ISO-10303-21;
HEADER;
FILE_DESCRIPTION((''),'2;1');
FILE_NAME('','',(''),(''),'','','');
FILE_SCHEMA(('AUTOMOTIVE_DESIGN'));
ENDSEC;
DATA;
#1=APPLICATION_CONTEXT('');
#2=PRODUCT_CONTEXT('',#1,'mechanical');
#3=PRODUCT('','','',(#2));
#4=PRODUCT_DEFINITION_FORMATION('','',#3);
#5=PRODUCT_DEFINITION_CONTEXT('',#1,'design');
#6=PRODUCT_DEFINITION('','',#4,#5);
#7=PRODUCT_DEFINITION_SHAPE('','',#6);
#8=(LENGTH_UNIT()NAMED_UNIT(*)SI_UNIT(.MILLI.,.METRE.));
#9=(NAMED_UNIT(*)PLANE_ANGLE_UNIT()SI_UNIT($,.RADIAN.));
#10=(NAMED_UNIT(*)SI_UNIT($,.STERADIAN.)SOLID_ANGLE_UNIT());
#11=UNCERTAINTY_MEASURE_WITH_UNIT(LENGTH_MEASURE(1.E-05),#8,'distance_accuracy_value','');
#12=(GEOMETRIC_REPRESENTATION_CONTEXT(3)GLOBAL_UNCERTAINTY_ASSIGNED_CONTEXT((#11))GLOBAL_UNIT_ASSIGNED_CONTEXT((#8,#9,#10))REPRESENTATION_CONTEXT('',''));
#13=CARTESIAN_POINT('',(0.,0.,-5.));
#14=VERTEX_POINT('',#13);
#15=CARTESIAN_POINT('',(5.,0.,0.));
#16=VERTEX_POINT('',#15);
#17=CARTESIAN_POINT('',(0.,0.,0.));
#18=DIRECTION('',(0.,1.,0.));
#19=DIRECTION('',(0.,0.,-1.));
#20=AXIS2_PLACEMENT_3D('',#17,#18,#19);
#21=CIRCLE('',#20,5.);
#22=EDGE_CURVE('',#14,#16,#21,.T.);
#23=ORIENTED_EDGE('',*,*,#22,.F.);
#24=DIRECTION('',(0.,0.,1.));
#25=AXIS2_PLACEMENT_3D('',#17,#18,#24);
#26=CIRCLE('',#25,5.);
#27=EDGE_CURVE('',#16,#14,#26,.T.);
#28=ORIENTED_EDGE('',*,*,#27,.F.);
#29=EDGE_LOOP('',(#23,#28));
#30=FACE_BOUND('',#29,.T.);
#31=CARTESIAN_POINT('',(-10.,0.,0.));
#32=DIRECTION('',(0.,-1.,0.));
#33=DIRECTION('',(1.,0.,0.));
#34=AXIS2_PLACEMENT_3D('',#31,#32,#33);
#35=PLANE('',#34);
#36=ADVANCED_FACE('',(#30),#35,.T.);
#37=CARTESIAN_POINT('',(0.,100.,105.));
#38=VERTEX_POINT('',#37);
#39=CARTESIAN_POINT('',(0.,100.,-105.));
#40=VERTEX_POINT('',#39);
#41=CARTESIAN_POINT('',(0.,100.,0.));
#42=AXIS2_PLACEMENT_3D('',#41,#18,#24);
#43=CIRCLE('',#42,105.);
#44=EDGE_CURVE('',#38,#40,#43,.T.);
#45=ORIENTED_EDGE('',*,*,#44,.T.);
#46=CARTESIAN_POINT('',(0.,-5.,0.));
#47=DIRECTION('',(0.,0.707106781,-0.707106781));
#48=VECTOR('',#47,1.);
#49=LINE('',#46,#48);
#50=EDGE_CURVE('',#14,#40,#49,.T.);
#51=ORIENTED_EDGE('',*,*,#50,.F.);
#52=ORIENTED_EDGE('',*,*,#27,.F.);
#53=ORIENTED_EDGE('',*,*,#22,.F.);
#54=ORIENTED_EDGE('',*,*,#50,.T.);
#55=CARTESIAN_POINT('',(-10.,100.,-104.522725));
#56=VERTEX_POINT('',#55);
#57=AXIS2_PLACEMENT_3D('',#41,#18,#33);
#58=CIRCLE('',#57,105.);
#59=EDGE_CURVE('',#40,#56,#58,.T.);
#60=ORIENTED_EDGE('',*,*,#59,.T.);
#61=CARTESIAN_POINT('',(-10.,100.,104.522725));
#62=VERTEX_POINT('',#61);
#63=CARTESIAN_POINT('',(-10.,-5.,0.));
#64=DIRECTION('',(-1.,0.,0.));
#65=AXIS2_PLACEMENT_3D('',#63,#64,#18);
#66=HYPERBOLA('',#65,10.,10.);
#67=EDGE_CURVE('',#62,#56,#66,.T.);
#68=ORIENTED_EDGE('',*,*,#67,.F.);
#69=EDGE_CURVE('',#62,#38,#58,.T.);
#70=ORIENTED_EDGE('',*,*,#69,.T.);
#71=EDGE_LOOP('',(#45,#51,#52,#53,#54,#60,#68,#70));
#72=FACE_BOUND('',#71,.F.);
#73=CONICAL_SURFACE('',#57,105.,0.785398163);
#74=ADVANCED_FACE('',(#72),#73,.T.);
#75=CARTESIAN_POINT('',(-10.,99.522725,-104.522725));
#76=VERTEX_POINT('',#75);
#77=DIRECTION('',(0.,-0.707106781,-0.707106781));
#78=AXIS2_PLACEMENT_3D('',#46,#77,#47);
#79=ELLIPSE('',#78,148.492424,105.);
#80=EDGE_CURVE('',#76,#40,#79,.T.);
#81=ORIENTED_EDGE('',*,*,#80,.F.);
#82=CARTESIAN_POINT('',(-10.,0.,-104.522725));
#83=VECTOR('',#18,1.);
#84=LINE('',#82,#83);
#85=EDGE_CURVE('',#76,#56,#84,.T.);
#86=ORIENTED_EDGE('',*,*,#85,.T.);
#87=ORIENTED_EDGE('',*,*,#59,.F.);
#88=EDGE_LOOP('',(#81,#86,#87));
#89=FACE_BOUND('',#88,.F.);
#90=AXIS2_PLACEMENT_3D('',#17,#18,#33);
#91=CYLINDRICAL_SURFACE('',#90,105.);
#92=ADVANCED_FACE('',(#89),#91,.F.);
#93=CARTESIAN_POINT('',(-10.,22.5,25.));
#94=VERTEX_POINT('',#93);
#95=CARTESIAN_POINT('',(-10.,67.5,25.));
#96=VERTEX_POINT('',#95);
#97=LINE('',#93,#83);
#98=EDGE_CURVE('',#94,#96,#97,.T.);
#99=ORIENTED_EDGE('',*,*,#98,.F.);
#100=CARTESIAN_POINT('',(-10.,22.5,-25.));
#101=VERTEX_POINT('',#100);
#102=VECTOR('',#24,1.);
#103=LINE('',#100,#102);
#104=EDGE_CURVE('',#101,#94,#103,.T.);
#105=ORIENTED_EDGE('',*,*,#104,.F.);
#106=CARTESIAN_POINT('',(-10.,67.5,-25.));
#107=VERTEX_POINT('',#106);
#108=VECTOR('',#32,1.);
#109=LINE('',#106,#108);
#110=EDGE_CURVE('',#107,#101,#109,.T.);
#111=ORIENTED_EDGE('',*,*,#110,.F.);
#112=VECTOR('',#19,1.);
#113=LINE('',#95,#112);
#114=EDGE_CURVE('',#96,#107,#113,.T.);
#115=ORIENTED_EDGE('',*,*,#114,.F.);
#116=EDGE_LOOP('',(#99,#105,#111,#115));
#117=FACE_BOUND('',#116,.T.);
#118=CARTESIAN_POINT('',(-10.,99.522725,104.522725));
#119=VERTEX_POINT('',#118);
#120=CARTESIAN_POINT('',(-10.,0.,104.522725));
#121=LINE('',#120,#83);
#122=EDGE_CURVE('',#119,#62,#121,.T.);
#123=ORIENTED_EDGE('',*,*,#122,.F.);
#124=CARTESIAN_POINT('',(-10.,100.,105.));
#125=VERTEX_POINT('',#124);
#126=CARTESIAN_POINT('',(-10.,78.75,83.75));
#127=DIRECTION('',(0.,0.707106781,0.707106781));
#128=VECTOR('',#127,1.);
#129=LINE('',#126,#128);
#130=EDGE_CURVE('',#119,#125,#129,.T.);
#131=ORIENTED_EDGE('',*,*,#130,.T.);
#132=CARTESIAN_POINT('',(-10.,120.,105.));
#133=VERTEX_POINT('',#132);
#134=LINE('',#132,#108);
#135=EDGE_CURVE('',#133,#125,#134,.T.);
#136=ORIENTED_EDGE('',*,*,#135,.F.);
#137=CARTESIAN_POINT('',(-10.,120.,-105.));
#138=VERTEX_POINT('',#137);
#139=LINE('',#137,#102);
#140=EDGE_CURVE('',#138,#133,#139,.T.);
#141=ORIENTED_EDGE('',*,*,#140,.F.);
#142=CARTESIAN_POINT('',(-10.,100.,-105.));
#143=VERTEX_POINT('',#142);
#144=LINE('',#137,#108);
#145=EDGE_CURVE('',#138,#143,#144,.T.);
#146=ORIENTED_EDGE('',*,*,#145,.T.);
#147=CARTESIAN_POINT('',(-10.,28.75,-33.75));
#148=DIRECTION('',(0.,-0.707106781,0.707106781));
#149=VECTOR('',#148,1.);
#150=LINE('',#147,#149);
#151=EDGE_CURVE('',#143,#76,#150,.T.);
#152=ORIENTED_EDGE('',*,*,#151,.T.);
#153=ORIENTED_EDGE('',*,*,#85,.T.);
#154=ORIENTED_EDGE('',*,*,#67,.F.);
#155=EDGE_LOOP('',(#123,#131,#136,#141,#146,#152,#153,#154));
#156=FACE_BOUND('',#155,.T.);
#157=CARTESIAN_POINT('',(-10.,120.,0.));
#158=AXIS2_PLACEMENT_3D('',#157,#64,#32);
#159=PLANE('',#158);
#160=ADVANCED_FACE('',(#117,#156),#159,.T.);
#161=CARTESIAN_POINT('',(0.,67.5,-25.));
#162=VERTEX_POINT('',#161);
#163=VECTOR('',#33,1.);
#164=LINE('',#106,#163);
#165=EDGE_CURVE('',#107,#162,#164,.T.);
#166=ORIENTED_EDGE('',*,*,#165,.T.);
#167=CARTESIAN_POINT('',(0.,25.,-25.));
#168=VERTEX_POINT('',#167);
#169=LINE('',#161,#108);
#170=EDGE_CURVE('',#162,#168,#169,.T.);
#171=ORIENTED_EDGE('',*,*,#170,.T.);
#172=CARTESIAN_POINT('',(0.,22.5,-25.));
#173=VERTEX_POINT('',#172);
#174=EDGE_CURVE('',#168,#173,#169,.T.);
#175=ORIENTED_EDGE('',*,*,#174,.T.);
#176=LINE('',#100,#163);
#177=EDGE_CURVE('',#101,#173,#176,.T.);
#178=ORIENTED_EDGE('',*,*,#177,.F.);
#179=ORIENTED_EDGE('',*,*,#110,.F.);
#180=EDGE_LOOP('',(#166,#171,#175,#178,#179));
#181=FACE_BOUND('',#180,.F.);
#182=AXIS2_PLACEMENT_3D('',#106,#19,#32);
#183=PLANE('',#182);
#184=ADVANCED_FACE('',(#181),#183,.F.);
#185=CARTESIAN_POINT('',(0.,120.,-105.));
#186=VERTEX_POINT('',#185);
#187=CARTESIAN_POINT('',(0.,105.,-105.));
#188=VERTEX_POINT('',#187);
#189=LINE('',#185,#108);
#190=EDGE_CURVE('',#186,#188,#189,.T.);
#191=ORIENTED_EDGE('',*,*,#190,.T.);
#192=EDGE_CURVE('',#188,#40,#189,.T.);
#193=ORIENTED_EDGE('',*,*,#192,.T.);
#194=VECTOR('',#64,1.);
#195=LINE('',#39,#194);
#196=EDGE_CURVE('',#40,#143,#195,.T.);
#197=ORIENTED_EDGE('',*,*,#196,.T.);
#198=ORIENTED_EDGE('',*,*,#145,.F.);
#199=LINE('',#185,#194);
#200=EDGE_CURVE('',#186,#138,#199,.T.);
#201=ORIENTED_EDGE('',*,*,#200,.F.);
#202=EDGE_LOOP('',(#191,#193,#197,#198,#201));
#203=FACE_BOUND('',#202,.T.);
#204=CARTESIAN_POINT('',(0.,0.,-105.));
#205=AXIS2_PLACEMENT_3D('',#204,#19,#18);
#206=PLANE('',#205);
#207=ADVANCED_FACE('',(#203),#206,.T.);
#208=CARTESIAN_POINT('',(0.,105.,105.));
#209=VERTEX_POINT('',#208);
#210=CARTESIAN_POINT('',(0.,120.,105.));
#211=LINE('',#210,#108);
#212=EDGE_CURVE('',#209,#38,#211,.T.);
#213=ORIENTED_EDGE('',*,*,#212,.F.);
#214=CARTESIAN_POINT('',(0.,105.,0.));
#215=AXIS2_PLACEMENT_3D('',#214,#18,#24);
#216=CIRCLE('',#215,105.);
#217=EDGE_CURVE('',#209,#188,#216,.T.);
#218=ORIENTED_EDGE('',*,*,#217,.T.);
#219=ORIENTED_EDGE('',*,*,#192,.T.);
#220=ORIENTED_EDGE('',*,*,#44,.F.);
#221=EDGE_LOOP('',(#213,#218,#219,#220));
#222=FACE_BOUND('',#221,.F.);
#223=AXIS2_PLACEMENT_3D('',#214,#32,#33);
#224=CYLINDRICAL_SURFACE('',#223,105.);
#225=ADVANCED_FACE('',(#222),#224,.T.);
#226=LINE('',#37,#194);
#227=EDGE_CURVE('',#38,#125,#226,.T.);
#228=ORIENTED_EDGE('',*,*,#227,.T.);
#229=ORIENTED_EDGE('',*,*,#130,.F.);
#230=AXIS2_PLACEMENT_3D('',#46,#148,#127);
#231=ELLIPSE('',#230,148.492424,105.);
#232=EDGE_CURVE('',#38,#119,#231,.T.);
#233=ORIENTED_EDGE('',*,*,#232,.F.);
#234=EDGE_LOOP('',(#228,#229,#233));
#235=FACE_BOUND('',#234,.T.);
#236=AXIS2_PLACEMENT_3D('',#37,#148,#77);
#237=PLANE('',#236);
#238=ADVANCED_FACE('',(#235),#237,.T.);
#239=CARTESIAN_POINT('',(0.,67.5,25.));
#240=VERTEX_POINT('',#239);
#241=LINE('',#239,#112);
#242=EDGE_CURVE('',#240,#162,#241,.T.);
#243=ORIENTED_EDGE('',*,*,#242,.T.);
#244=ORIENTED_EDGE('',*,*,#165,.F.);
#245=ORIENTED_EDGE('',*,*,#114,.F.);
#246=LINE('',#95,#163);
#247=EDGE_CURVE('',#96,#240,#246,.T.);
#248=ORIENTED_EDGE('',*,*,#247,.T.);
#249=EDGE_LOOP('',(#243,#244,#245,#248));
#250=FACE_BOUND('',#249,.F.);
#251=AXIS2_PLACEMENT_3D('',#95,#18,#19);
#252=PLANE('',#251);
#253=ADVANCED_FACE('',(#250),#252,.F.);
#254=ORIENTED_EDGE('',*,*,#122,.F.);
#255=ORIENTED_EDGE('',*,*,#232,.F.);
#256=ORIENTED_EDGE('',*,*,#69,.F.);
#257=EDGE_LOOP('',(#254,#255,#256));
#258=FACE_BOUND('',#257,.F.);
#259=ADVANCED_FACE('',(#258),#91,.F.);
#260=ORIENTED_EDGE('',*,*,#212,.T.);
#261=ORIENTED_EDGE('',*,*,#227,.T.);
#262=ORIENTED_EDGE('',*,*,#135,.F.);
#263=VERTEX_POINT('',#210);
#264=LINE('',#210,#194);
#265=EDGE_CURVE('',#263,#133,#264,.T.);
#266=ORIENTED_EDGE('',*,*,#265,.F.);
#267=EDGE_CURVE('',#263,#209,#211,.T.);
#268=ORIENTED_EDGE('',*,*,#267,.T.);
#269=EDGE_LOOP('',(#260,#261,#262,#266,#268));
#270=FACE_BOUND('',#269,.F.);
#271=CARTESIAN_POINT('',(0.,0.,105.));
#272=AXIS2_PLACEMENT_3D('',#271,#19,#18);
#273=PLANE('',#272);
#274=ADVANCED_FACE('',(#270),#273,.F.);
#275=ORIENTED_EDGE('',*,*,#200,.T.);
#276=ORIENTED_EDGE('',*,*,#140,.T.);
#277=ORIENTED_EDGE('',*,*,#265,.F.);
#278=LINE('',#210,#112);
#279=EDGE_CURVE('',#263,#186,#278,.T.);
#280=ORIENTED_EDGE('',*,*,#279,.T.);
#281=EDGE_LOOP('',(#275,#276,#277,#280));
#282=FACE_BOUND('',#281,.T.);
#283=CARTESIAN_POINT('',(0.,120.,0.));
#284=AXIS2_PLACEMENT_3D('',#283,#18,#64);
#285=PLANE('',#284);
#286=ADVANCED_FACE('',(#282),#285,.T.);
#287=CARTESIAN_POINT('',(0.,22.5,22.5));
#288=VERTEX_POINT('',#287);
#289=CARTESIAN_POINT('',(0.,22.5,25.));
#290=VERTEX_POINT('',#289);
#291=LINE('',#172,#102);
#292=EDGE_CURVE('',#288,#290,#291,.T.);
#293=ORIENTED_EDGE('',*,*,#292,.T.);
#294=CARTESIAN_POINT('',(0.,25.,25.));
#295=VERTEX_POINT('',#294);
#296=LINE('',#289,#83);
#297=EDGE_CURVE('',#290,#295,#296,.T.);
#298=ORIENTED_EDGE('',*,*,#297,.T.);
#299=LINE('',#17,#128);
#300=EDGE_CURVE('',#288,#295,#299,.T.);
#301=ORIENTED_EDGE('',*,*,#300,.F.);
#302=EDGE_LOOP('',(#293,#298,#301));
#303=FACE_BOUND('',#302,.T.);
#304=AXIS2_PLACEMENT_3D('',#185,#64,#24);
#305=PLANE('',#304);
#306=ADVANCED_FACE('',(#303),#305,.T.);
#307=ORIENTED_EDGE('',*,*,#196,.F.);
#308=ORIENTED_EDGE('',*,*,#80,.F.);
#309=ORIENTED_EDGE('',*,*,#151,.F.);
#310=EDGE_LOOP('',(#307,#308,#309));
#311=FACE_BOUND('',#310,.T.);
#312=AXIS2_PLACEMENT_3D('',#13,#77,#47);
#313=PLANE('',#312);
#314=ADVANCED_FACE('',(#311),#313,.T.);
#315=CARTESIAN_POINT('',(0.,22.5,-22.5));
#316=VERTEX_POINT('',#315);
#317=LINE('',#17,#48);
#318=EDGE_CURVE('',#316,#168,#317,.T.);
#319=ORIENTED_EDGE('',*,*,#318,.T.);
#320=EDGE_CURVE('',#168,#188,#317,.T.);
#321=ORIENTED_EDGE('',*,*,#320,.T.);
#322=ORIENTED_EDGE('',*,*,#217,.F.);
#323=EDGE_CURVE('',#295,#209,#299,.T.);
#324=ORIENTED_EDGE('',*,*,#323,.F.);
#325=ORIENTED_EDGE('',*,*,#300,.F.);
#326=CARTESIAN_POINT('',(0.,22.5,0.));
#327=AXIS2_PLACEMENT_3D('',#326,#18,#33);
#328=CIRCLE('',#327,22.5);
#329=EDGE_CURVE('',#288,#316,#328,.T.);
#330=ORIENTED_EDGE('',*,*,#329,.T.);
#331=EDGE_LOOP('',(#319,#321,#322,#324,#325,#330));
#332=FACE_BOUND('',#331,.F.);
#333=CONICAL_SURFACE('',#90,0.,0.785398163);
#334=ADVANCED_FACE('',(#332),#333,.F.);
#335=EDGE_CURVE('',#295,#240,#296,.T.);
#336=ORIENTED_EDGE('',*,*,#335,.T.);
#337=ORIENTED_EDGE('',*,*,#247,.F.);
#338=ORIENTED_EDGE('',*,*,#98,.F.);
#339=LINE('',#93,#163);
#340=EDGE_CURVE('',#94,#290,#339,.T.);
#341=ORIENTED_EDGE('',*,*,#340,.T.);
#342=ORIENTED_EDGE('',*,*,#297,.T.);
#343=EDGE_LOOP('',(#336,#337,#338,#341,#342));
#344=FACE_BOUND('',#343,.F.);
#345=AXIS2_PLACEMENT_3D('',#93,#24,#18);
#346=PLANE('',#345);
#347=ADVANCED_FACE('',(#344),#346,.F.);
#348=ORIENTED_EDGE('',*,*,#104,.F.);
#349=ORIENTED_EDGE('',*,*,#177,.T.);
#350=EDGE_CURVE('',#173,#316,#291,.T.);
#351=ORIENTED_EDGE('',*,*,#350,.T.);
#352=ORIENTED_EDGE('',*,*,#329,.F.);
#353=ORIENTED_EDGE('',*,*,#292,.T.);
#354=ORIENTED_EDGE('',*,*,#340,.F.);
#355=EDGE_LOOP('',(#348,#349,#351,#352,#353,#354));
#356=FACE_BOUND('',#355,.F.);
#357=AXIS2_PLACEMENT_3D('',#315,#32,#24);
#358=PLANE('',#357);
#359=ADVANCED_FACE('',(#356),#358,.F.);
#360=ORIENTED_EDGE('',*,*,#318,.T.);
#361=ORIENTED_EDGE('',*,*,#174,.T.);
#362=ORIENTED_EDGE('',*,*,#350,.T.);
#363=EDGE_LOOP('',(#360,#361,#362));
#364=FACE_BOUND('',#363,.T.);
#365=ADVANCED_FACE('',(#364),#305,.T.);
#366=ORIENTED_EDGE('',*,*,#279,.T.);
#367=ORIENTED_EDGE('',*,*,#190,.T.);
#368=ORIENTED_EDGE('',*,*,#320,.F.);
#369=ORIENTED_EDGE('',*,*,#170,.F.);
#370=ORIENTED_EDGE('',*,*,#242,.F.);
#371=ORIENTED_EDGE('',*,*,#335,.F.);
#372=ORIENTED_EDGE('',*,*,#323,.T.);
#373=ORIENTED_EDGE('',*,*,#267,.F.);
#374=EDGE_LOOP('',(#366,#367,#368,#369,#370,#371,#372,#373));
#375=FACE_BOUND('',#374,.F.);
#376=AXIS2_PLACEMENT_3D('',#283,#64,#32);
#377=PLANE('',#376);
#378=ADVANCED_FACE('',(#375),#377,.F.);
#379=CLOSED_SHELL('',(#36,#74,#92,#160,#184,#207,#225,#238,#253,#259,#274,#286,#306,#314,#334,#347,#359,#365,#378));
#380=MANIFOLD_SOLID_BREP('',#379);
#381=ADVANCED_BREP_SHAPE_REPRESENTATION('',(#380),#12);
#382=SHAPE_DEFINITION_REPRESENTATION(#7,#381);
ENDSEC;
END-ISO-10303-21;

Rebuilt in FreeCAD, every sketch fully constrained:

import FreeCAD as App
import Part
import Sketcher
from FreeCAD import Vector


def add_polygon(sketch, points):
    """Adds a closed chain of lines whose ends are joined by coincident constraints."""
    first, n = sketch.GeometryCount, len(points)
    for a, b in zip(points, points[1:] + points[:1]):
        sketch.addGeometry(Part.LineSegment(App.Vector(*a, 0), App.Vector(*b, 0)), False)
    for i in range(n):
        sketch.addConstraint(Sketcher.Constraint("Coincident", first + i, 2, first + (i + 1) % n, 1))

doc = App.newDocument("Part")
body = doc.addObject("PartDesign::Body", "Body")

sketch1 = body.newObject("Sketcher::SketchObject", "Sketch")
sketch1.AttachmentSupport = (doc.getObject("XY_Plane"), [""])
sketch1.MapMode = "FlatFace"
add_polygon(sketch1, [(105, 105), (0, 0), (5, 0), (105, 100)])
sketch1.addConstraint(Sketcher.Constraint("Horizontal", 1))
sketch1.addConstraint(Sketcher.Constraint("Vertical", 3))
sketch1.addConstraint(Sketcher.Constraint("Coincident", 0, 2, -1, 1))
sketch1.addConstraint(Sketcher.Constraint("Parallel", 0, 2))
sketch1.addConstraint(Sketcher.Constraint("Equal", 1, 3))
sketch1.addConstraint(Sketcher.Constraint("DistanceX", 1, 1, 1, 2, 5.0))
sketch1.addConstraint(Sketcher.Constraint("DistanceY", -1, 1, 2, 2, 100.0))
revolution = body.newObject("PartDesign::Revolution", "Revolution")
revolution.Profile = sketch1
revolution.ReferenceAxis = (sketch1, ["V_Axis"])
revolution.Angle = 360

sketch2 = body.newObject("Sketcher::SketchObject", "Sketch001")
sketch2.AttachmentSupport = (doc.getObject("XY_Plane"), [""])
sketch2.MapMode = "FlatFace"
add_polygon(sketch2, [(-110, 120), (-10, 120), (-10, 0), (-110, 0)])
sketch2.addConstraint(Sketcher.Constraint("Horizontal", 0))
sketch2.addConstraint(Sketcher.Constraint("Vertical", 1))
sketch2.addConstraint(Sketcher.Constraint("Horizontal", 2))
sketch2.addConstraint(Sketcher.Constraint("Vertical", 3))
sketch2.addConstraint(Sketcher.Constraint("PointOnObject", 1, 2, -1))
sketch2.addConstraint(Sketcher.Constraint("DistanceX", 0, 1, 0, 2, 100.0))
sketch2.addConstraint(Sketcher.Constraint("DistanceY", 1, 2, 1, 1, 120.0))
sketch2.addConstraint(Sketcher.Constraint("DistanceX", 0, 2, -1, 1, 10.0))
pocket1 = body.newObject("PartDesign::Pocket", "Pocket")
pocket1.Profile = sketch2
pocket1.Type = "ThroughAll"
pocket1.Midplane = True

sketch3 = body.newObject("Sketcher::SketchObject", "Sketch002")
sketch3.AttachmentSupport = (doc.getObject("XY_Plane"), [""])
sketch3.MapMode = "FlatFace"
add_polygon(sketch3, [(-10, 120), (0, 120), (0, 0), (-10, 0)])
sketch3.addConstraint(Sketcher.Constraint("Horizontal", 0))
sketch3.addConstraint(Sketcher.Constraint("Vertical", 1))
sketch3.addConstraint(Sketcher.Constraint("Horizontal", 2))
sketch3.addConstraint(Sketcher.Constraint("Vertical", 3))
sketch3.addConstraint(Sketcher.Constraint("Coincident", 1, 2, -1, 1))
sketch3.addConstraint(Sketcher.Constraint("DistanceX", 0, 1, 0, 2, 10.0))
sketch3.addConstraint(Sketcher.Constraint("DistanceY", 1, 2, 1, 1, 120.0))
pad1 = body.newObject("PartDesign::Pad", "Pad")
pad1.Profile = sketch3
pad1.Length = 210
pad1.Midplane = True

sketch4 = body.newObject("Sketcher::SketchObject", "Sketch003")
sketch4.AttachmentSupport = (doc.getObject("YZ_Plane"), [""])
sketch4.MapMode = "FlatFace"
add_polygon(sketch4, [(0, 5), (100, 105), (0, 105)])
add_polygon(sketch4, [(100, -105), (0, -5), (0, -105)])
sketch4.addConstraint(Sketcher.Constraint("Horizontal", 1))
sketch4.addConstraint(Sketcher.Constraint("Vertical", 2))
sketch4.addConstraint(Sketcher.Constraint("Vertical", 4))
sketch4.addConstraint(Sketcher.Constraint("Horizontal", 5))
sketch4.addConstraint(Sketcher.Constraint("Symmetric", 2, 2, 3, 2, -1, 1))
sketch4.addConstraint(Sketcher.Constraint("Symmetric", 1, 2, 4, 2, -1))
sketch4.addConstraint(Sketcher.Constraint("Perpendicular", 0, 3))
sketch4.addConstraint(Sketcher.Constraint("Vertical", 0, 2, 5, 2))
sketch4.addConstraint(Sketcher.Constraint("DistanceX", 1, 2, 1, 1, 100.0))
sketch4.addConstraint(Sketcher.Constraint("DistanceY", -1, 1, 0, 2, 105.0))
pocket2 = body.newObject("PartDesign::Pocket", "Pocket001")
pocket2.Profile = sketch4
pocket2.Type = "ThroughAll"

sketch5 = body.newObject("Sketcher::SketchObject", "Sketch004")
sketch5.AttachmentSupport = (doc.getObject("YZ_Plane"), [""])
sketch5.MapMode = "FlatFace"
sketch5.AttachmentOffset = App.Placement(Vector(0, 0, -10), App.Rotation())
add_polygon(sketch5, [(22, 25), (68, 25), (68, -25), (22, -25)])
sketch5.addConstraint(Sketcher.Constraint("Horizontal", 0))
sketch5.addConstraint(Sketcher.Constraint("Vertical", 1))
sketch5.addConstraint(Sketcher.Constraint("Horizontal", 2))
sketch5.addConstraint(Sketcher.Constraint("Vertical", 3))
sketch5.addConstraint(Sketcher.Constraint("DistanceX", 0, 1, 0, 2, 45.0))
sketch5.addConstraint(Sketcher.Constraint("DistanceY", 1, 2, 1, 1, 50.0))
sketch5.addConstraint(Sketcher.Constraint("DistanceY", -1, 1, 0, 2, 25.0))
sketch5.addConstraint(Sketcher.Constraint("DistanceX", -1, 1, 0, 2, 67.5))
pocket3 = body.newObject("PartDesign::Pocket", "Pocket002")
pocket3.Profile = sketch5
pocket3.Length = 10
pocket3.Reversed = True

sketch6 = body.newObject("Sketcher::SketchObject", "Sketch005")
sketch6.AttachmentSupport = (doc.getObject("YZ_Plane"), [""])
sketch6.MapMode = "FlatFace"
add_polygon(sketch6, [(0, 0), (22, -22), (22, 22)])
sketch6.addConstraint(Sketcher.Constraint("Vertical", 1))
sketch6.addConstraint(Sketcher.Constraint("Coincident", 2, 2, -1, 1))
sketch6.addConstraint(Sketcher.Constraint("Perpendicular", 0, 2))
sketch6.addConstraint(Sketcher.Constraint("Equal", 0, 2))
sketch6.addConstraint(Sketcher.Constraint("DistanceY", 1, 1, 1, 2, 45.0))
pad2 = body.newObject("PartDesign::Pad", "Pad001")
pad2.Profile = sketch6
pad2.Length = 25

sketch7 = body.newObject("Sketcher::SketchObject", "Sketch006")
sketch7.AttachmentSupport = (doc.getObject("XY_Plane"), [""])
sketch7.MapMode = "FlatFace"
add_polygon(sketch7, [(105, 100), (5, 0), (105, 0)])
sketch7.addConstraint(Sketcher.Constraint("Horizontal", 1))
sketch7.addConstraint(Sketcher.Constraint("Vertical", 2))
sketch7.addConstraint(Sketcher.Constraint("PointOnObject", 0, 2, -1))
sketch7.addConstraint(Sketcher.Constraint("Equal", 1, 2))
sketch7.addConstraint(Sketcher.Constraint("DistanceX", 1, 1, 1, 2, 100.0))
sketch7.addConstraint(Sketcher.Constraint("DistanceX", -1, 1, 0, 2, 5.0))
groove = body.newObject("PartDesign::Groove", "Groove")
groove.Profile = sketch7
groove.ReferenceAxis = (sketch7, ["V_Axis"])
groove.Angle = 360

doc.recompute()
